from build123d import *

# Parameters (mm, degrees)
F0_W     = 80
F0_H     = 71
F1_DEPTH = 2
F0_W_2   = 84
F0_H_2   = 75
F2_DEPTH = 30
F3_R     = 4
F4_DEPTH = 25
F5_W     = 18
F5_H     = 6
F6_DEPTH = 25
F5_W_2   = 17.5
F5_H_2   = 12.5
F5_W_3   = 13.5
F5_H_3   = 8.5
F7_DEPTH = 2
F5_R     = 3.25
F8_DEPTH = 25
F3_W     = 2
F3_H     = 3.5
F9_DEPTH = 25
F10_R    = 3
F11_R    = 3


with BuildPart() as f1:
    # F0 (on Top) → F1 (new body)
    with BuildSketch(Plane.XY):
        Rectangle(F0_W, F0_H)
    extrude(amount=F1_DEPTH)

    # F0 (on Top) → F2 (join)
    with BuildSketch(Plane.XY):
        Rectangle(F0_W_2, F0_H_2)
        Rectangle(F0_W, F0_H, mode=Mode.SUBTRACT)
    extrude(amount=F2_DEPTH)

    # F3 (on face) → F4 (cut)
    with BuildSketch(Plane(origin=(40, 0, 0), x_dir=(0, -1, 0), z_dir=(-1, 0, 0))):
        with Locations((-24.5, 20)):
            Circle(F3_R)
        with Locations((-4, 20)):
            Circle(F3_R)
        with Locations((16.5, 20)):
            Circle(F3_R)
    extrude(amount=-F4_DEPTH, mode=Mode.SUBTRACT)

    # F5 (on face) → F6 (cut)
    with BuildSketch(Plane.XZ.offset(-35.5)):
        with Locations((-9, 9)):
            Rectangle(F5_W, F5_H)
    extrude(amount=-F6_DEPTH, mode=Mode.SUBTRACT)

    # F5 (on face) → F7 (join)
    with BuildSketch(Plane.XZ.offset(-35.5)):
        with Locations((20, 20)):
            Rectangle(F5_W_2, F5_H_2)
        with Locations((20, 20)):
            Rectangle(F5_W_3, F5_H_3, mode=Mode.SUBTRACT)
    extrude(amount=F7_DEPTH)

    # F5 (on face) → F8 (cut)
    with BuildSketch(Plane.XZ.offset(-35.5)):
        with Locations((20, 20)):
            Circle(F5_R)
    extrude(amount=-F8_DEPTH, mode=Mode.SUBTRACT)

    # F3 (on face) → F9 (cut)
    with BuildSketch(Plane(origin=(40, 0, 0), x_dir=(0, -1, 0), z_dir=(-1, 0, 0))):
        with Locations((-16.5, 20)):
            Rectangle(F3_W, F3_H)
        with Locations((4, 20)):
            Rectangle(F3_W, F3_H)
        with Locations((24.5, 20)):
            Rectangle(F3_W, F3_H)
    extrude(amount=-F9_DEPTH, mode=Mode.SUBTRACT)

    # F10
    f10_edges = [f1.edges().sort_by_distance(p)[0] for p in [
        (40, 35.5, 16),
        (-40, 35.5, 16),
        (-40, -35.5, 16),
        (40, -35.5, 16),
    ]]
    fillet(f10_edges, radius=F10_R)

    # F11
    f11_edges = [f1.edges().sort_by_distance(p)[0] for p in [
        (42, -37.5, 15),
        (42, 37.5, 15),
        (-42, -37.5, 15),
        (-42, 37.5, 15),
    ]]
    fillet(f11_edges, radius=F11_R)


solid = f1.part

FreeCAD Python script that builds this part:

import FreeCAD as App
import Part
import Sketcher


def edges_at(feature, points):
    """Names of the edges that pass closest to the given points."""
    edges = feature.Shape.Edges
    near = lambda p: min(range(len(edges)), key=lambda i: edges[i].distToShape(Part.Vertex(*p))[0])
    return sorted({f"Edge{near(p) + 1}" for p in points})


def add_polygon(sketch, points):
    """Adds a closed chain of lines whose ends are joined by coincident constraints."""
    first, n = sketch.GeometryCount, len(points)
    for a, b in zip(points, points[1:] + points[:1]):
        sketch.addGeometry(Part.LineSegment(App.Vector(*a, 0), App.Vector(*b, 0)), False)
    for i in range(n):
        sketch.addConstraint(Sketcher.Constraint("Coincident", first + i, 2, first + (i + 1) % n, 1))

doc = App.newDocument("Part")
body = doc.addObject("PartDesign::Body", "Body")

sketch1 = body.newObject("Sketcher::SketchObject", "Sketch")
sketch1.AttachmentSupport = (doc.getObject("XY_Plane"), [""])
sketch1.MapMode = "FlatFace"
add_polygon(sketch1, [(-40, 36), (-40, -36), (40, -36), (40, 36)])
sketch1.addConstraint(Sketcher.Constraint("Vertical", 0))
sketch1.addConstraint(Sketcher.Constraint("Horizontal", 1))
sketch1.addConstraint(Sketcher.Constraint("Vertical", 2))
sketch1.addConstraint(Sketcher.Constraint("Horizontal", 3))
sketch1.addConstraint(Sketcher.Constraint("Symmetric", 0, 2, 2, 2, -1, 1))
sketch1.addConstraint(Sketcher.Constraint("DistanceX", 1, 1, 1, 2, 80.0))
sketch1.addConstraint(Sketcher.Constraint("DistanceY", 0, 2, 0, 1, 71.0))
pad1 = body.newObject("PartDesign::Pad", "Pad")
pad1.Profile = sketch1
pad1.Length = 2

sketch2 = body.newObject("Sketcher::SketchObject", "Sketch001")
sketch2.AttachmentSupport = (doc.getObject("XY_Plane"), [""])
sketch2.MapMode = "FlatFace"
add_polygon(sketch2, [(-42, 38), (-42, -38), (42, -38), (42, 38)])
add_polygon(sketch2, [(40, -36), (-40, -36), (-40, 36), (40, 36)])
sketch2.addConstraint(Sketcher.Constraint("Vertical", 0))
sketch2.addConstraint(Sketcher.Constraint("Horizontal", 1))
sketch2.addConstraint(Sketcher.Constraint("Vertical", 2))
sketch2.addConstraint(Sketcher.Constraint("Horizontal", 3))
sketch2.addConstraint(Sketcher.Constraint("Horizontal", 4))
sketch2.addConstraint(Sketcher.Constraint("Vertical", 5))
sketch2.addConstraint(Sketcher.Constraint("Horizontal", 6))
sketch2.addConstraint(Sketcher.Constraint("Vertical", 7))
sketch2.addConstraint(Sketcher.Constraint("Symmetric", 0, 2, 2, 2, -1, 1))
sketch2.addConstraint(Sketcher.Constraint("Symmetric", 4, 2, 6, 2, -1, 1))
sketch2.addConstraint(Sketcher.Constraint("DistanceX", 1, 1, 1, 2, 84.0))
sketch2.addConstraint(Sketcher.Constraint("DistanceX", 4, 2, 4, 1, 80.0))
sketch2.addConstraint(Sketcher.Constraint("DistanceY", 0, 2, 0, 1, 75.0))
sketch2.addConstraint(Sketcher.Constraint("DistanceY", 5, 1, 5, 2, 71.0))
pad2 = body.newObject("PartDesign::Pad", "Pad001")
pad2.Profile = sketch2
pad2.Length = 30

sketch3 = body.newObject("Sketcher::SketchObject", "Sketch002")
sketch3.AttachmentSupport = (doc.getObject("YZ_Plane"), [""])
sketch3.MapMode = "FlatFace"
sketch3.AttachmentOffset = App.Placement(App.Vector(0, 0, 40), App.Rotation())
sketch3.addGeometry(Part.Circle(App.Vector(24.5, 20, 0), App.Vector(0, 0, 1), 4), False)
sketch3.addGeometry(Part.Circle(App.Vector(4, 20, 0), App.Vector(0, 0, 1), 4), False)
sketch3.addGeometry(Part.Circle(App.Vector(-16.5, 20, 0), App.Vector(0, 0, 1), 4), False)
sketch3.addConstraint(Sketcher.Constraint("Equal", 0, 1))
sketch3.addConstraint(Sketcher.Constraint("Equal", 1, 2))
sketch3.addConstraint(Sketcher.Constraint("Horizontal", 0, 3, 1, 3))
sketch3.addConstraint(Sketcher.Constraint("Horizontal", 1, 3, 2, 3))
sketch3.addConstraint(Sketcher.Constraint("Diameter", 0, 8.0))
sketch3.addConstraint(Sketcher.Constraint("DistanceY", -1, 1, 0, 3, 20.0))
sketch3.addConstraint(Sketcher.Constraint("DistanceX", -1, 1, 1, 3, 4.0))
sketch3.addConstraint(Sketcher.Constraint("DistanceX", 2, 3, 0, 3, 41.0))
sketch3.addConstraint(Sketcher.Constraint("DistanceX", -1, 1, 0, 3, 24.5))
pocket1 = body.newObject("PartDesign::Pocket", "Pocket")
pocket1.Profile = sketch3
pocket1.Length = 25
pocket1.Reversed = True

sketch4 = body.newObject("Sketcher::SketchObject", "Sketch003")
sketch4.AttachmentSupport = (doc.getObject("XZ_Plane"), [""])
sketch4.MapMode = "FlatFace"
sketch4.AttachmentOffset = App.Placement(App.Vector(0, 0, -35.5), App.Rotation())
add_polygon(sketch4, [(-18, 12), (-18, 6), (0, 6), (0, 12)])
sketch4.addConstraint(Sketcher.Constraint("Vertical", 0))
sketch4.addConstraint(Sketcher.Constraint("Horizontal", 1))
sketch4.addConstraint(Sketcher.Constraint("Vertical", 2))
sketch4.addConstraint(Sketcher.Constraint("Horizontal", 3))
sketch4.addConstraint(Sketcher.Constraint("PointOnObject", 1, 2, -2))
sketch4.addConstraint(Sketcher.Constraint("DistanceX", 1, 1, 1, 2, 18.0))
sketch4.addConstraint(Sketcher.Constraint("DistanceY", 0, 2, 0, 1, 6.0))
sketch4.addConstraint(Sketcher.Constraint("DistanceY", -1, 1, 0, 2, 6.0))
pocket2 = body.newObject("PartDesign::Pocket", "Pocket001")
pocket2.Profile = sketch4
pocket2.Length = 25

sketch5 = body.newObject("Sketcher::SketchObject", "Sketch004")
sketch5.AttachmentSupport = (doc.getObject("XZ_Plane"), [""])
sketch5.MapMode = "FlatFace"
sketch5.AttachmentOffset = App.Placement(App.Vector(0, 0, -35.5), App.Rotation())
add_polygon(sketch5, [(11, 26), (11, 14), (29, 14), (29, 26)])
add_polygon(sketch5, [(27, 16), (13, 16), (13, 24), (27, 24)])
sketch5.addConstraint(Sketcher.Constraint("Vertical", 0))
sketch5.addConstraint(Sketcher.Constraint("Horizontal", 1))
sketch5.addConstraint(Sketcher.Constraint("Vertical", 2))
sketch5.addConstraint(Sketcher.Constraint("Horizontal", 3))
sketch5.addConstraint(Sketcher.Constraint("Horizontal", 4))
sketch5.addConstraint(Sketcher.Constraint("Vertical", 5))
sketch5.addConstraint(Sketcher.Constraint("Horizontal", 6))
sketch5.addConstraint(Sketcher.Constraint("Vertical", 7))
sketch5.addConstraint(Sketcher.Constraint("DistanceX", 1, 1, 1, 2, 17.5))
sketch5.addConstraint(Sketcher.Constraint("DistanceX", 4, 2, 4, 1, 13.5))
sketch5.addConstraint(Sketcher.Constraint("DistanceY", 0, 2, 0, 1, 12.5))
sketch5.addConstraint(Sketcher.Constraint("DistanceY", 5, 1, 5, 2, 8.5))
sketch5.addConstraint(Sketcher.Constraint("DistanceX", 0, 2, 4, 2, 2.0))
sketch5.addConstraint(Sketcher.Constraint("DistanceY", 0, 2, 4, 2, 2.0))
sketch5.addConstraint(Sketcher.Constraint("DistanceX", -1, 1, 0, 2, 11.25))
sketch5.addConstraint(Sketcher.Constraint("DistanceY", -1, 1, 0, 2, 13.75))
pad3 = body.newObject("PartDesign::Pad", "Pad002")
pad3.Profile = sketch5
pad3.Length = 2

sketch6 = body.newObject("Sketcher::SketchObject", "Sketch005")
sketch6.AttachmentSupport = (doc.getObject("XZ_Plane"), [""])
sketch6.MapMode = "FlatFace"
sketch6.AttachmentOffset = App.Placement(App.Vector(0, 0, -35.5), App.Rotation())
sketch6.addGeometry(Part.Circle(App.Vector(20, 20, 0), App.Vector(0, 0, 1), 3.2), False)
sketch6.addConstraint(Sketcher.Constraint("Diameter", 0, 6.5))
sketch6.addConstraint(Sketcher.Constraint("DistanceX", -1, 1, 0, 3, 20.0))
sketch6.addConstraint(Sketcher.Constraint("DistanceY", -1, 1, 0, 3, 20.0))
pocket3 = body.newObject("PartDesign::Pocket", "Pocket002")
pocket3.Profile = sketch6
pocket3.Length = 25

sketch7 = body.newObject("Sketcher::SketchObject", "Sketch006")
sketch7.AttachmentSupport = (doc.getObject("YZ_Plane"), [""])
sketch7.MapMode = "FlatFace"
sketch7.AttachmentOffset = App.Placement(App.Vector(0, 0, 40), App.Rotation())
add_polygon(sketch7, [(17.5, 21.8), (17.5, 18.2), (15.5, 18.2), (15.5, 21.8)])
add_polygon(sketch7, [(-3, 21.8), (-3, 18.2), (-5, 18.2), (-5, 21.8)])
add_polygon(sketch7, [(-23.5, 21.8), (-23.5, 18.2), (-25.5, 18.2), (-25.5, 21.8)])
sketch7.addConstraint(Sketcher.Constraint("Vertical", 0))
sketch7.addConstraint(Sketcher.Constraint("Horizontal", 1))
sketch7.addConstraint(Sketcher.Constraint("Vertical", 2))
sketch7.addConstraint(Sketcher.Constraint("Horizontal", 3))
sketch7.addConstraint(Sketcher.Constraint("Vertical", 4))
sketch7.addConstraint(Sketcher.Constraint("Horizontal", 5))
sketch7.addConstraint(Sketcher.Constraint("Vertical", 6))
sketch7.addConstraint(Sketcher.Constraint("Horizontal", 7))
sketch7.addConstraint(Sketcher.Constraint("Vertical", 8))
sketch7.addConstraint(Sketcher.Constraint("Horizontal", 9))
sketch7.addConstraint(Sketcher.Constraint("Vertical", 10))
sketch7.addConstraint(Sketcher.Constraint("Horizontal", 11))
sketch7.addConstraint(Sketcher.Constraint("Horizontal", 1, 2, 4, 2))
sketch7.addConstraint(Sketcher.Constraint("Horizontal", 3, 2, 6, 2))
sketch7.addConstraint(Sketcher.Constraint("Horizontal", 5, 2, 8, 2))
sketch7.addConstraint(Sketcher.Constraint("Horizontal", 7, 2, 10, 2))
sketch7.addConstraint(Sketcher.Constraint("Equal", 3, 5))
sketch7.addConstraint(Sketcher.Constraint("Equal", 7, 9))
sketch7.addConstraint(Sketcher.Constraint("DistanceX", 1, 2, 1, 1, 2.0))
sketch7.addConstraint(Sketcher.Constraint("DistanceY", 0, 2, 0, 1, 3.5))
sketch7.addConstraint(Sketcher.Constraint("DistanceX", 4, 2, -1, 1, 3.0))
sketch7.addConstraint(Sketcher.Constraint("DistanceX", 8, 2, 1, 2, 39.0))
sketch7.addConstraint(Sketcher.Constraint("DistanceX", -1, 1, 0, 2, 17.5))
sketch7.addConstraint(Sketcher.Constraint("DistanceY", -1, 1, 0, 2, 18.25))
pocket4 = body.newObject("PartDesign::Pocket", "Pocket003")
pocket4.Profile = sketch7
pocket4.Length = 25
pocket4.Reversed = True
doc.recompute()

fillet = body.newObject("PartDesign::Fillet", "Fillet")
fillet.Base = (pocket4, edges_at(pocket4, [
    (40, 35.5, 16),
    (-40, 35.5, 16),
    (-40, -35.5, 16),
    (40, -35.5, 16),
]))
fillet.Radius = 3
doc.recompute()

fillet2 = body.newObject("PartDesign::Fillet", "Fillet001")
fillet2.Base = (fillet, edges_at(fillet, [
    (42, -37.5, 15),
    (42, 37.5, 15),
    (-42, -37.5, 15),
    (-42, 37.5, 15),
]))
fillet2.Radius = 3

doc.recompute()
